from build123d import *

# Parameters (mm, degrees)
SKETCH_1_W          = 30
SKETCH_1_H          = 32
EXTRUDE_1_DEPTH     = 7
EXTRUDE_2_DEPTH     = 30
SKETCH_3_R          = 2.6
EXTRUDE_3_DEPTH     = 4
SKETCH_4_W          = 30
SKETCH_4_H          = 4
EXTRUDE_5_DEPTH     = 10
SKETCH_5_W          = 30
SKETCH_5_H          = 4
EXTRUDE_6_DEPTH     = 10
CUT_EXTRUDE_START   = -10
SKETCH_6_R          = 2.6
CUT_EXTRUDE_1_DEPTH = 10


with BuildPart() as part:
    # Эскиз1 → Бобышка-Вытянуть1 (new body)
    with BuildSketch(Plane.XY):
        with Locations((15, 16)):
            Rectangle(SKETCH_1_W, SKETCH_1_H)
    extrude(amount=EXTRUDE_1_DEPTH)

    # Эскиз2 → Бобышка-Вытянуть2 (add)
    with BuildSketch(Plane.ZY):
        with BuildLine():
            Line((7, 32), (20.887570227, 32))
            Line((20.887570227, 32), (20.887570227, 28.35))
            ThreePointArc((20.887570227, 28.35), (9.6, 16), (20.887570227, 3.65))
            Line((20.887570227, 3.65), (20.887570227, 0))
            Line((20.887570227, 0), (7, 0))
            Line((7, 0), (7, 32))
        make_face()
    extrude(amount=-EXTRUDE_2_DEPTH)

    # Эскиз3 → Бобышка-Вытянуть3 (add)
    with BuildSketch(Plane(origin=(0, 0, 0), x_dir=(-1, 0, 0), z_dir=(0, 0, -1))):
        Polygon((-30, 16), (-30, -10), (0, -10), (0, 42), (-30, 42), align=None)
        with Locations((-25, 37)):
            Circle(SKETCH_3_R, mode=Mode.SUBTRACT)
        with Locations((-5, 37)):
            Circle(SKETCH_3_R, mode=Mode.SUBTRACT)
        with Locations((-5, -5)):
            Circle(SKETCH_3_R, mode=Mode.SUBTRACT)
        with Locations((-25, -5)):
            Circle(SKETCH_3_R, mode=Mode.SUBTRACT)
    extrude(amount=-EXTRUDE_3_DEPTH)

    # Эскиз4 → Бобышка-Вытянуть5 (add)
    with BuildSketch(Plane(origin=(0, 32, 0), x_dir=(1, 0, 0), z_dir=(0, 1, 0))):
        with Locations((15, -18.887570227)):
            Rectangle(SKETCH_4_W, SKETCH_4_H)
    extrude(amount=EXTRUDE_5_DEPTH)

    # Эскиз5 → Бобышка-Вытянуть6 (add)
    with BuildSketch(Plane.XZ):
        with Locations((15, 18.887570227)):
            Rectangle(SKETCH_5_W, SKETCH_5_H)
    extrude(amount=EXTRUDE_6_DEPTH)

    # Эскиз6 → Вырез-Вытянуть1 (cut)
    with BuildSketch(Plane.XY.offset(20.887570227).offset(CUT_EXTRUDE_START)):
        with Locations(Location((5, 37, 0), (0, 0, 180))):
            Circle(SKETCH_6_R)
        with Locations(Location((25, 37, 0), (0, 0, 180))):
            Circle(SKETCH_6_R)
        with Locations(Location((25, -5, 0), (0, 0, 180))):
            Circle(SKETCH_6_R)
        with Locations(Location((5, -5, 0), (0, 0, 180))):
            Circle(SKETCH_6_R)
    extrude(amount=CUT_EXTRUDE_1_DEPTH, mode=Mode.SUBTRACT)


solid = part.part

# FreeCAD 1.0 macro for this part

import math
import FreeCAD as App
import Part
import Sketcher
Q = App.Units.Quantity

doc = App.newDocument("Part")
body = doc.addObject("PartDesign::Body", "Body")

sketch1 = body.newObject("Sketcher::SketchObject", "Sketch")
sketch1.AttachmentSupport = (doc.getObject("XY_Plane"), [""])
sketch1.MapMode = "FlatFace"
sketch1.addGeometry([
    Part.LineSegment(App.Vector(0, 32, 0), App.Vector(0, 0, 0)),
    Part.LineSegment(App.Vector(0, 0, 0), App.Vector(30, 0, 0)),
    Part.LineSegment(App.Vector(30, 0, 0), App.Vector(30, 32, 0)),
    Part.LineSegment(App.Vector(30, 32, 0), App.Vector(0, 32, 0)),
], False)
sketch1.addConstraint([
    Sketcher.Constraint("Coincident", 0, 2, 1, 1),
    Sketcher.Constraint("Coincident", 1, 2, 2, 1),
    Sketcher.Constraint("Coincident", 2, 2, 3, 1),
    Sketcher.Constraint("Coincident", 3, 2, 0, 1),
    Sketcher.Constraint("Vertical", 0),
    Sketcher.Constraint("Horizontal", 1),
    Sketcher.Constraint("Vertical", 2),
    Sketcher.Constraint("Horizontal", 3),
    Sketcher.Constraint("Coincident", 0, 2, -1, 1),
    Sketcher.Constraint("DistanceX", 1, 1, 1, 2, Q("30 mm")),
    Sketcher.Constraint("DistanceY", 0, 2, 0, 1, Q("32 mm")),
])
pad1 = body.newObject("PartDesign::Pad", "Pad")
pad1.Profile = sketch1
pad1.Length = 7

sketch2 = body.newObject("Sketcher::SketchObject", "Sketch001")
sketch2.AttachmentSupport = (doc.getObject("YZ_Plane"), [""])
sketch2.MapMode = "FlatFace"
sketch2.addGeometry([
    Part.LineSegment(App.Vector(32, 20.9, 0), App.Vector(32, 7, 0)),
    Part.LineSegment(App.Vector(32, 7, 0), App.Vector(0, 7, 0)),
    Part.LineSegment(App.Vector(0, 7, 0), App.Vector(0, 20.9, 0)),
    Part.LineSegment(App.Vector(0, 20.9, 0), App.Vector(3.6, 20.9, 0)),
    Part.ArcOfCircle(Part.Circle(App.Vector(16, 22, 0), App.Vector(0, 0, 1), 12.4), math.radians(-175), math.radians(-5)),
    Part.LineSegment(App.Vector(28.4, 20.9, 0), App.Vector(32, 20.9, 0)),
], False)
sketch2.addConstraint([
    Sketcher.Constraint("Coincident", 0, 2, 1, 1),
    Sketcher.Constraint("Coincident", 1, 2, 2, 1),
    Sketcher.Constraint("Coincident", 2, 2, 3, 1),
    Sketcher.Constraint("Coincident", 3, 2, 4, 1),
    Sketcher.Constraint("Coincident", 4, 2, 5, 1),
    Sketcher.Constraint("Coincident", 5, 2, 0, 1),
    Sketcher.Constraint("Vertical", 0),
    Sketcher.Constraint("Horizontal", 1),
    Sketcher.Constraint("Vertical", 2),
    Sketcher.Constraint("Horizontal", 3),
    Sketcher.Constraint("Horizontal", 5),
    Sketcher.Constraint("PointOnObject", 1, 2, -2),
    Sketcher.Constraint("Horizontal", 3, 2, 4, 2),
    Sketcher.Constraint("Equal", 3, 5),
    Sketcher.Constraint("Radius", 4, Q("12.4 mm")),
    Sketcher.Constraint("DistanceX", 1, 2, 1, 1, Q("32 mm")),
    Sketcher.Constraint("DistanceY", -1, 1, 4, 3, Q("22 mm")),
    Sketcher.Constraint("DistanceY", -1, 1, 0, 2, Q("7 mm")),
    Sketcher.Constraint("DistanceX", 3, 1, 3, 2, Q("3.65 mm")),
])
pad2 = body.newObject("PartDesign::Pad", "Pad001")
pad2.Profile = sketch2
pad2.Length = 30

sketch3 = body.newObject("Sketcher::SketchObject", "Sketch002")
sketch3.AttachmentSupport = (doc.getObject("XY_Plane"), [""])
sketch3.MapMode = "FlatFace"
sketch3.addGeometry([
    Part.LineSegment(App.Vector(30, -10, 0), App.Vector(0, -10, 0)),
    Part.LineSegment(App.Vector(0, -10, 0), App.Vector(0, 42, 0)),
    Part.LineSegment(App.Vector(0, 42, 0), App.Vector(30, 42, 0)),
    Part.LineSegment(App.Vector(30, 42, 0), App.Vector(30, -10, 0)),
    Part.Circle(App.Vector(25, -5, 0), App.Vector(0, 0, 1), 2.6),
    Part.Circle(App.Vector(5, -5, 0), App.Vector(0, 0, 1), 2.6),
    Part.Circle(App.Vector(25, 37, 0), App.Vector(0, 0, 1), 2.6),
    Part.Circle(App.Vector(5, 37, 0), App.Vector(0, 0, 1), 2.6),
], False)
sketch3.addConstraint([
    Sketcher.Constraint("Coincident", 0, 2, 1, 1),
    Sketcher.Constraint("Coincident", 1, 2, 2, 1),
    Sketcher.Constraint("Coincident", 2, 2, 3, 1),
    Sketcher.Constraint("Coincident", 3, 2, 0, 1),
    Sketcher.Constraint("Horizontal", 0),
    Sketcher.Constraint("Vertical", 1),
    Sketcher.Constraint("Horizontal", 2),
    Sketcher.Constraint("Vertical", 3),
    Sketcher.Constraint("Equal", 4, 5),
    Sketcher.Constraint("Equal", 5, 6),
    Sketcher.Constraint("Equal", 6, 7),
    Sketcher.Constraint("PointOnObject", 0, 2, -2),
    Sketcher.Constraint("Horizontal", 4, 3, 5, 3),
    Sketcher.Constraint("Horizontal", 6, 3, 7, 3),
    Sketcher.Constraint("Vertical", 4, 3, 6, 3),
    Sketcher.Constraint("Vertical", 5, 3, 7, 3),
    Sketcher.Constraint("Diameter", 4, Q("5.2 mm")),
    Sketcher.Constraint("DistanceX", 0, 2, 0, 1, Q("30 mm")),
    Sketcher.Constraint("DistanceY", 1, 1, 1, 2, Q("52 mm")),
    Sketcher.Constraint("DistanceX", -1, 1, 4, 3, Q("25 mm")),
    Sketcher.Constraint("DistanceY", 4, 3, -1, 1, Q("5 mm")),
    Sketcher.Constraint("DistanceX", -1, 1, 5, 3, Q("5 mm")),
    Sketcher.Constraint("DistanceY", -1, 1, 6, 3, Q("37 mm")),
    Sketcher.Constraint("DistanceY", 0, 2, -1, 1, Q("10 mm")),
])
pad3 = body.newObject("PartDesign::Pad", "Pad002")
pad3.Profile = sketch3
pad3.Length = 4

sketch4 = body.newObject("Sketcher::SketchObject", "Sketch003")
sketch4.AttachmentSupport = (doc.getObject("XZ_Plane"), [""])
sketch4.MapMode = "FlatFace"
sketch4.AttachmentOffset = App.Placement(App.Vector(0, 0, -32), App.Rotation())
sketch4.addGeometry([
    Part.LineSegment(App.Vector(0, 16.9, 0), App.Vector(0, 20.9, 0)),
    Part.LineSegment(App.Vector(0, 20.9, 0), App.Vector(30, 20.9, 0)),
    Part.LineSegment(App.Vector(30, 20.9, 0), App.Vector(30, 16.9, 0)),
    Part.LineSegment(App.Vector(30, 16.9, 0), App.Vector(0, 16.9, 0)),
], False)
sketch4.addConstraint([
    Sketcher.Constraint("Coincident", 0, 2, 1, 1),
    Sketcher.Constraint("Coincident", 1, 2, 2, 1),
    Sketcher.Constraint("Coincident", 2, 2, 3, 1),
    Sketcher.Constraint("Coincident", 3, 2, 0, 1),
    Sketcher.Constraint("Vertical", 0),
    Sketcher.Constraint("Horizontal", 1),
    Sketcher.Constraint("Vertical", 2),
    Sketcher.Constraint("Horizontal", 3),
    Sketcher.Constraint("PointOnObject", 0, 2, -2),
    Sketcher.Constraint("DistanceX", 1, 1, 1, 2, Q("30 mm")),
    Sketcher.Constraint("DistanceY", 0, 1, 0, 2, Q("4 mm")),
    Sketcher.Constraint("DistanceY", -1, 1, 0, 2, Q("20.88757 mm")),
])
pad4 = body.newObject("PartDesign::Pad", "Pad003")
pad4.Profile = sketch4
pad4.Length = 10
pad4.Reversed = True

sketch5 = body.newObject("Sketcher::SketchObject", "Sketch004")
sketch5.AttachmentSupport = (doc.getObject("XZ_Plane"), [""])
sketch5.MapMode = "FlatFace"
sketch5.addGeometry([
    Part.LineSegment(App.Vector(0, 20.9, 0), App.Vector(0, 16.9, 0)),
    Part.LineSegment(App.Vector(0, 16.9, 0), App.Vector(30, 16.9, 0)),
    Part.LineSegment(App.Vector(30, 16.9, 0), App.Vector(30, 20.9, 0)),
    Part.LineSegment(App.Vector(30, 20.9, 0), App.Vector(0, 20.9, 0)),
], False)
sketch5.addConstraint([
    Sketcher.Constraint("Coincident", 0, 2, 1, 1),
    Sketcher.Constraint("Coincident", 1, 2, 2, 1),
    Sketcher.Constraint("Coincident", 2, 2, 3, 1),
    Sketcher.Constraint("Coincident", 3, 2, 0, 1),
    Sketcher.Constraint("Vertical", 0),
    Sketcher.Constraint("Horizontal", 1),
    Sketcher.Constraint("Vertical", 2),
    Sketcher.Constraint("Horizontal", 3),
    Sketcher.Constraint("PointOnObject", 0, 2, -2),
    Sketcher.Constraint("DistanceX", 1, 1, 1, 2, Q("30 mm")),
    Sketcher.Constraint("DistanceY", 0, 2, 0, 1, Q("4 mm")),
    Sketcher.Constraint("DistanceY", -1, 1, 0, 2, Q("16.88757 mm")),
])
pad5 = body.newObject("PartDesign::Pad", "Pad004")
pad5.Profile = sketch5
pad5.Length = 10

sketch6 = body.newObject("Sketcher::SketchObject", "Sketch005")
sketch6.AttachmentSupport = (doc.getObject("XY_Plane"), [""])
sketch6.MapMode = "FlatFace"
sketch6.AttachmentOffset = App.Placement(App.Vector(0, 0, 10.88757), App.Rotation())
sketch6.addGeometry([
    Part.Circle(App.Vector(5, 37, 0), App.Vector(0, 0, 1), 2.6),
    Part.Circle(App.Vector(25, 37, 0), App.Vector(0, 0, 1), 2.6),
    Part.Circle(App.Vector(25, -5, 0), App.Vector(0, 0, 1), 2.6),
    Part.Circle(App.Vector(5, -5, 0), App.Vector(0, 0, 1), 2.6),
], False)
sketch6.addConstraint([
    Sketcher.Constraint("Equal", 0, 1),
    Sketcher.Constraint("Equal", 1, 2),
    Sketcher.Constraint("Equal", 2, 3),
    Sketcher.Constraint("Horizontal", 0, 3, 1, 3),
    Sketcher.Constraint("Horizontal", 2, 3, 3, 3),
    Sketcher.Constraint("Vertical", 1, 3, 2, 3),
    Sketcher.Constraint("Vertical", 0, 3, 3, 3),
    Sketcher.Constraint("Diameter", 0, Q("5.2 mm")),
    Sketcher.Constraint("DistanceX", -1, 1, 0, 3, Q("5 mm")),
    Sketcher.Constraint("DistanceY", -1, 1, 0, 3, Q("37 mm")),
    Sketcher.Constraint("DistanceX", -1, 1, 1, 3, Q("25 mm")),
    Sketcher.Constraint("DistanceY", 2, 3, -1, 1, Q("5 mm")),
])
pocket1 = body.newObject("PartDesign::Pocket", "Pocket")
pocket1.Profile = sketch6
pocket1.Length = 10
pocket1.Reversed = True

doc.recompute()
